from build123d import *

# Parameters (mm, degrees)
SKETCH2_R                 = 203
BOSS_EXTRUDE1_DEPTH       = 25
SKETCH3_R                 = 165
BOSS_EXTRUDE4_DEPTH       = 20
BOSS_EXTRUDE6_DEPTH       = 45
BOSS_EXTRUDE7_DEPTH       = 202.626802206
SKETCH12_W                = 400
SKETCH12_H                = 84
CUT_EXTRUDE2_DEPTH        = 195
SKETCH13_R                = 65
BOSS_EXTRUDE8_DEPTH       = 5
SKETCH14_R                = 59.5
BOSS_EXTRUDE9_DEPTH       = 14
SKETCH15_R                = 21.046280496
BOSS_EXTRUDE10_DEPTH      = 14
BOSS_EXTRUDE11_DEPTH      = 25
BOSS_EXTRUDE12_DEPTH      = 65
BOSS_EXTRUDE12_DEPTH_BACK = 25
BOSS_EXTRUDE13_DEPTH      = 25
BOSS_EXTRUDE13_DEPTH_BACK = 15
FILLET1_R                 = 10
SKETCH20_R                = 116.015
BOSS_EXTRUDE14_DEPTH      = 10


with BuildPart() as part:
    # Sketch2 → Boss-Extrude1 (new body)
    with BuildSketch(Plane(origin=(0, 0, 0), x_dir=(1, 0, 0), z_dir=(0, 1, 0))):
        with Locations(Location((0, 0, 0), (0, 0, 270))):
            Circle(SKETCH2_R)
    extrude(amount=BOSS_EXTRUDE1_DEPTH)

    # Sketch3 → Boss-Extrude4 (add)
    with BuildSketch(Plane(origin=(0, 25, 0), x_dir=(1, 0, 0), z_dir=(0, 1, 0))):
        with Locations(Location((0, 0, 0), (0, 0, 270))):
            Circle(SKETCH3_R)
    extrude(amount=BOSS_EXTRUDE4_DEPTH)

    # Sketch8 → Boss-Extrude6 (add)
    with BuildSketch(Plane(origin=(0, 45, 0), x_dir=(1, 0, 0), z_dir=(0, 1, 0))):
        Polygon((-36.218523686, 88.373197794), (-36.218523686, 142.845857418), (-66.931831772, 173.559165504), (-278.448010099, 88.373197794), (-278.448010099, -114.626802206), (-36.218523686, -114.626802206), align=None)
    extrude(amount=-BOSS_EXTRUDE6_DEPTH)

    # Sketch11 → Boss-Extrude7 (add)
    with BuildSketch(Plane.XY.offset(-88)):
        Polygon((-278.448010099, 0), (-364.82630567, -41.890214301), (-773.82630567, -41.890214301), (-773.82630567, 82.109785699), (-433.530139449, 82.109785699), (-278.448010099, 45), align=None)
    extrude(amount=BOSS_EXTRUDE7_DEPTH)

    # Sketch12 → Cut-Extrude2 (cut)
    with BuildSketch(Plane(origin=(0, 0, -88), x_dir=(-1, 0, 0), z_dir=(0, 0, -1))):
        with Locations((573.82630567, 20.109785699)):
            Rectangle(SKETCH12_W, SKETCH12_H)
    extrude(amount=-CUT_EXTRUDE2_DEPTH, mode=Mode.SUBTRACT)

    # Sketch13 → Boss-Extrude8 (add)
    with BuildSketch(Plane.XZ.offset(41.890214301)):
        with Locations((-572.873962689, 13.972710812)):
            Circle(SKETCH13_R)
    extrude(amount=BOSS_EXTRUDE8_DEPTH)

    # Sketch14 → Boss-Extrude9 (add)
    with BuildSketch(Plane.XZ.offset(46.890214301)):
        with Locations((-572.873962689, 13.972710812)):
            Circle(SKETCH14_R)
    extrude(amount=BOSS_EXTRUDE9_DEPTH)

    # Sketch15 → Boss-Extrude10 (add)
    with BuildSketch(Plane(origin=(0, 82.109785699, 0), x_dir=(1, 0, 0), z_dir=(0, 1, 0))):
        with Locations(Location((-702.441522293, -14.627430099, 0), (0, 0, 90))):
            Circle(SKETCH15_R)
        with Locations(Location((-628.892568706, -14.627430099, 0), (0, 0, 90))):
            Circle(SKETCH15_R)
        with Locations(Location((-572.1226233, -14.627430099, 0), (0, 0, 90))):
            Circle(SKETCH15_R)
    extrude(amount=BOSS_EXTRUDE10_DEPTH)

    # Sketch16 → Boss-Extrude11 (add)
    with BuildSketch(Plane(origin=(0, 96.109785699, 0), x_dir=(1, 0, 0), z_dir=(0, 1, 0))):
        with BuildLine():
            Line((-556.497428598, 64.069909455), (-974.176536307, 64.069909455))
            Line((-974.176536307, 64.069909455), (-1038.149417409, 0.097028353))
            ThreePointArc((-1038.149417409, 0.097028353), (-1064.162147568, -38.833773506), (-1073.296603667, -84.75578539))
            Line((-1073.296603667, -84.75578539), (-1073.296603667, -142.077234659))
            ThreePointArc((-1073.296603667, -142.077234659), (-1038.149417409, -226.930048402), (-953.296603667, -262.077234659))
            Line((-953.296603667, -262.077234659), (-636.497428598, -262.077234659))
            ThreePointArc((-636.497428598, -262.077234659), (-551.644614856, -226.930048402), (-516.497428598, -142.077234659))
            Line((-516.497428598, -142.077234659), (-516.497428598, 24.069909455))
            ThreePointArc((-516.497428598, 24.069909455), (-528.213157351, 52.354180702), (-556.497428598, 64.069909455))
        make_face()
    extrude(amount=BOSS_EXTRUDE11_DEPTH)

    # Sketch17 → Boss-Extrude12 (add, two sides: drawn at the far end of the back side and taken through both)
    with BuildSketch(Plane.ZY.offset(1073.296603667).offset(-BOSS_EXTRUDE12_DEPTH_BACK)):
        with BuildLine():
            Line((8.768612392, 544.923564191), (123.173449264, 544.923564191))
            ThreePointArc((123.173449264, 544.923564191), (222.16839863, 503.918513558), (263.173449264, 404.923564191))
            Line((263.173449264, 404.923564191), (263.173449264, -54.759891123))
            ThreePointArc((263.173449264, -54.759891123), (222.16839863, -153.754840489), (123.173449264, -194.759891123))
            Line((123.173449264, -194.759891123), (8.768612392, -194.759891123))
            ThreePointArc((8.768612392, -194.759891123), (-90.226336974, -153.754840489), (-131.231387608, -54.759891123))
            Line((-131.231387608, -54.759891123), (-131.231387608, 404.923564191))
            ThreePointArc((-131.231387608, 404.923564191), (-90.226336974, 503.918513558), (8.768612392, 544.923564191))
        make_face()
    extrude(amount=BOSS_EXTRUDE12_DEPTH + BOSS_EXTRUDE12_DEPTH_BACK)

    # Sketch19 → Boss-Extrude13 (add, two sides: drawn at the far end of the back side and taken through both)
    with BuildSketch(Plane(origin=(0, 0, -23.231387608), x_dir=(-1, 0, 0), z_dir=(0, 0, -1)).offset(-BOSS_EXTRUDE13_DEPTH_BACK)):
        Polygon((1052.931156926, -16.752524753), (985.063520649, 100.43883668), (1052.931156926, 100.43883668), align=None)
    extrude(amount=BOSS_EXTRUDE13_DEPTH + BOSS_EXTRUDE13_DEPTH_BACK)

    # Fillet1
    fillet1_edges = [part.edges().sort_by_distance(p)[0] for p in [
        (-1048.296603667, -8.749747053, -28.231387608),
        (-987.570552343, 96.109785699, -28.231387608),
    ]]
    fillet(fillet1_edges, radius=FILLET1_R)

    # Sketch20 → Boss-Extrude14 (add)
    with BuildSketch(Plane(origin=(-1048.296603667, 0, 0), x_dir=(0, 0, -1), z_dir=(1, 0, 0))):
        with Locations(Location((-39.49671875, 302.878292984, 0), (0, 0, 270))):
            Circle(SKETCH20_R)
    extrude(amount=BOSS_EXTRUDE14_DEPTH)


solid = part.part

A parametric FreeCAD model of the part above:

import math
import FreeCAD as App
import Part
import Sketcher
from FreeCAD import Vector
Q = App.Units.Quantity


def edges_at(feature, points):
    """Names of the edges that pass closest to the given points."""
    edges = feature.Shape.Edges
    near = lambda p: min(range(len(edges)), key=lambda i: edges[i].distToShape(Part.Vertex(*p))[0])
    return sorted({f"Edge{near(p) + 1}" for p in points})

doc = App.newDocument("Part")
body = doc.addObject("PartDesign::Body", "Body")

# Sketch on XZ plane
sketch1 = body.newObject("Sketcher::SketchObject", "Sketch")
sketch1.AttachmentSupport = (doc.getObject("XZ_Plane"), [""])
sketch1.MapMode = "FlatFace"
sketch1.addGeometry(Part.Circle(Vector(0, 0, 0), Vector(0, 0, 1), 203), False)
sketch1.addConstraint(Sketcher.Constraint("Coincident", 0, 3, -1, 1))
sketch1.addConstraint(Sketcher.Constraint("Diameter", 0, 406.0))
pad1 = body.newObject("PartDesign::Pad", "Pad")
pad1.Profile = sketch1
pad1.Length = 25
pad1.Reversed = True

# Sketch on XZ plane
sketch2 = body.newObject("Sketcher::SketchObject", "Sketch001")
sketch2.AttachmentSupport = (doc.getObject("XZ_Plane"), [""])
sketch2.MapMode = "FlatFace"
sketch2.AttachmentOffset = App.Placement(Vector(0, 0, -25), App.Rotation())
sketch2.addGeometry(Part.Circle(Vector(0, 0, 0), Vector(0, 0, 1), 165), False)
sketch2.addConstraint(Sketcher.Constraint("Coincident", 0, 3, -1, 1))
sketch2.addConstraint(Sketcher.Constraint("Diameter", 0, 330.0))
pad2 = body.newObject("PartDesign::Pad", "Pad001")
pad2.Profile = sketch2
pad2.Length = 20
pad2.Reversed = True

# Sketch on XZ plane
sketch3 = body.newObject("Sketcher::SketchObject", "Sketch002")
sketch3.AttachmentSupport = (doc.getObject("XZ_Plane"), [""])
sketch3.MapMode = "FlatFace"
sketch3.AttachmentOffset = App.Placement(Vector(0, 0, -45), App.Rotation())
sketch3.addGeometry(Part.LineSegment(Vector(-36, -143, 0), Vector(-67, -174, 0)), False)
sketch3.addGeometry(Part.LineSegment(Vector(-67, -174, 0), Vector(-278, -88, 0)), False)
sketch3.addGeometry(Part.LineSegment(Vector(-278, -88, 0), Vector(-278, 115, 0)), False)
sketch3.addGeometry(Part.LineSegment(Vector(-278, 115, 0), Vector(-36, 115, 0)), False)
sketch3.addGeometry(Part.LineSegment(Vector(-36, 115, 0), Vector(-36, -143, 0)), False)
sketch3.addConstraint(Sketcher.Constraint("Coincident", 0, 2, 1, 1))
sketch3.addConstraint(Sketcher.Constraint("Coincident", 1, 2, 2, 1))
sketch3.addConstraint(Sketcher.Constraint("Coincident", 2, 2, 3, 1))
sketch3.addConstraint(Sketcher.Constraint("Coincident", 3, 2, 4, 1))
sketch3.addConstraint(Sketcher.Constraint("Coincident", 4, 2, 0, 1))
sketch3.addConstraint(Sketcher.Constraint("Vertical", 2))
sketch3.addConstraint(Sketcher.Constraint("Horizontal", 3))
sketch3.addConstraint(Sketcher.Constraint("Vertical", 4))
sketch3.addConstraint(Sketcher.Constraint("DistanceY", 2, 1, 2, 2, 203.0))
sketch3.addConstraint(Sketcher.Constraint("Angle", 0, Q("-135 deg")))
sketch3.addConstraint(Sketcher.Constraint("DistanceY", 4, 2, 4, 1, 257.47266))
sketch3.addConstraint(Sketcher.Constraint("Distance", 1, 228.02575))
sketch3.addConstraint(Sketcher.Constraint("DistanceX", 3, 1, 3, 2, 242.229486))
sketch3.addConstraint(Sketcher.Constraint("DistanceX", 0, 2, -1, 1, 66.931832))
sketch3.addConstraint(Sketcher.Constraint("DistanceY", 0, 2, -1, 1, 173.559166))
pad3 = body.newObject("PartDesign::Pad", "Pad002")
pad3.Profile = sketch3
pad3.Length = 45

# Sketch on XY plane
sketch4 = body.newObject("Sketcher::SketchObject", "Sketch003")
sketch4.AttachmentSupport = (doc.getObject("XY_Plane"), [""])
sketch4.MapMode = "FlatFace"
sketch4.AttachmentOffset = App.Placement(Vector(0, 0, -88), App.Rotation())
sketch4.addGeometry(Part.LineSegment(Vector(-365, -42, 0), Vector(-278, 0, 0)), False)
sketch4.addGeometry(Part.LineSegment(Vector(-278, 0, 0), Vector(-278, 45, 0)), False)
sketch4.addGeometry(Part.LineSegment(Vector(-278, 45, 0), Vector(-434, 82, 0)), False)
sketch4.addGeometry(Part.LineSegment(Vector(-434, 82, 0), Vector(-774, 82, 0)), False)
sketch4.addGeometry(Part.LineSegment(Vector(-774, 82, 0), Vector(-774, -42, 0)), False)
sketch4.addGeometry(Part.LineSegment(Vector(-774, -42, 0), Vector(-365, -42, 0)), False)
sketch4.addConstraint(Sketcher.Constraint("Coincident", 0, 2, 1, 1))
sketch4.addConstraint(Sketcher.Constraint("Coincident", 1, 2, 2, 1))
sketch4.addConstraint(Sketcher.Constraint("Coincident", 2, 2, 3, 1))
sketch4.addConstraint(Sketcher.Constraint("Coincident", 3, 2, 4, 1))
sketch4.addConstraint(Sketcher.Constraint("Coincident", 4, 2, 5, 1))
sketch4.addConstraint(Sketcher.Constraint("Coincident", 5, 2, 0, 1))
sketch4.addConstraint(Sketcher.Constraint("Vertical", 1))
sketch4.addConstraint(Sketcher.Constraint("Horizontal", 3))
sketch4.addConstraint(Sketcher.Constraint("Vertical", 4))
sketch4.addConstraint(Sketcher.Constraint("Horizontal", 5))
sketch4.addConstraint(Sketcher.Constraint("PointOnObject", 0, 2, -1))
sketch4.addConstraint(Sketcher.Constraint("DistanceX", 5, 1, 5, 2, 409.0))
sketch4.addConstraint(Sketcher.Constraint("DistanceY", 1, 1, 1, 2, 45.0))
sketch4.addConstraint(Sketcher.Constraint("DistanceY", 4, 2, 4, 1, 124.0))
sketch4.addConstraint(Sketcher.Constraint("Distance", 0, 96.0))
sketch4.addConstraint(Sketcher.Constraint("Distance", 2, 159.460349))
sketch4.addConstraint(Sketcher.Constraint("DistanceX", 3, 2, 3, 1, 340.296166))
sketch4.addConstraint(Sketcher.Constraint("DistanceX", 0, 2, -1, 1, 278.44801))
pad4 = body.newObject("PartDesign::Pad", "Pad003")
pad4.Profile = sketch4
pad4.Length = 202.626802

# Sketch on XY plane
sketch5 = body.newObject("Sketcher::SketchObject", "Sketch004")
sketch5.AttachmentSupport = (doc.getObject("XY_Plane"), [""])
sketch5.MapMode = "FlatFace"
sketch5.AttachmentOffset = App.Placement(Vector(0, 0, -88), App.Rotation())
sketch5.addGeometry(Part.LineSegment(Vector(-374, 62, 0), Vector(-374, -22, 0)), False)
sketch5.addGeometry(Part.LineSegment(Vector(-374, -22, 0), Vector(-774, -22, 0)), False)
sketch5.addGeometry(Part.LineSegment(Vector(-774, -22, 0), Vector(-774, 62, 0)), False)
sketch5.addGeometry(Part.LineSegment(Vector(-774, 62, 0), Vector(-374, 62, 0)), False)
sketch5.addConstraint(Sketcher.Constraint("Coincident", 0, 2, 1, 1))
sketch5.addConstraint(Sketcher.Constraint("Coincident", 1, 2, 2, 1))
sketch5.addConstraint(Sketcher.Constraint("Coincident", 2, 2, 3, 1))
sketch5.addConstraint(Sketcher.Constraint("Coincident", 3, 2, 0, 1))
sketch5.addConstraint(Sketcher.Constraint("Vertical", 0))
sketch5.addConstraint(Sketcher.Constraint("Horizontal", 1))
sketch5.addConstraint(Sketcher.Constraint("Vertical", 2))
sketch5.addConstraint(Sketcher.Constraint("Horizontal", 3))
sketch5.addConstraint(Sketcher.Constraint("DistanceX", 1, 2, 1, 1, 400.0))
sketch5.addConstraint(Sketcher.Constraint("DistanceY", 0, 2, 0, 1, 84.0))
sketch5.addConstraint(Sketcher.Constraint("DistanceX", 0, 2, -1, 1, 373.826306))
sketch5.addConstraint(Sketcher.Constraint("DistanceY", 0, 2, -1, 1, 21.890214))
pocket1 = body.newObject("PartDesign::Pocket", "Pocket")
pocket1.Profile = sketch5
pocket1.Length = 195
pocket1.Reversed = True

# Sketch on XZ plane
sketch6 = body.newObject("Sketcher::SketchObject", "Sketch005")
sketch6.AttachmentSupport = (doc.getObject("XZ_Plane"), [""])
sketch6.MapMode = "FlatFace"
sketch6.AttachmentOffset = App.Placement(Vector(0, 0, 41.890214), App.Rotation())
sketch6.addGeometry(Part.Circle(Vector(-573, 14, 0), Vector(0, 0, 1), 65), False)
sketch6.addConstraint(Sketcher.Constraint("Diameter", 0, 130.0))
sketch6.addConstraint(Sketcher.Constraint("DistanceY", -1, 1, 0, 3, 13.972711))
sketch6.addConstraint(Sketcher.Constraint("DistanceX", 0, 3, -1, 1, 572.873963))
pad5 = body.newObject("PartDesign::Pad", "Pad004")
pad5.Profile = sketch6
pad5.Length = 5

# Sketch on XZ plane
sketch7 = body.newObject("Sketcher::SketchObject", "Sketch006")
sketch7.AttachmentSupport = (doc.getObject("XZ_Plane"), [""])
sketch7.MapMode = "FlatFace"
sketch7.AttachmentOffset = App.Placement(Vector(0, 0, 46.890214), App.Rotation())
sketch7.addGeometry(Part.Circle(Vector(-573, 14, 0), Vector(0, 0, 1), 60), False)
sketch7.addConstraint(Sketcher.Constraint("Diameter", 0, 119.0))
sketch7.addConstraint(Sketcher.Constraint("DistanceY", -1, 1, 0, 3, 13.972711))
sketch7.addConstraint(Sketcher.Constraint("DistanceX", 0, 3, -1, 1, 572.873963))
pad6 = body.newObject("PartDesign::Pad", "Pad005")
pad6.Profile = sketch7
pad6.Length = 14

# Sketch on XZ plane
sketch8 = body.newObject("Sketcher::SketchObject", "Sketch007")
sketch8.AttachmentSupport = (doc.getObject("XZ_Plane"), [""])
sketch8.MapMode = "FlatFace"
sketch8.AttachmentOffset = App.Placement(Vector(0, 0, -82.109786), App.Rotation())
sketch8.addGeometry(Part.Circle(Vector(-702, 15, 0), Vector(0, 0, 1), 21), False)
sketch8.addGeometry(Part.Circle(Vector(-629, 15, 0), Vector(0, 0, 1), 21), False)
sketch8.addGeometry(Part.Circle(Vector(-572, 15, 0), Vector(0, 0, 1), 21), False)
sketch8.addConstraint(Sketcher.Constraint("Equal", 0, 1))
sketch8.addConstraint(Sketcher.Constraint("Equal", 1, 2))
sketch8.addConstraint(Sketcher.Constraint("Horizontal", 0, 3, 1, 3))
sketch8.addConstraint(Sketcher.Constraint("Horizontal", 1, 3, 2, 3))
sketch8.addConstraint(Sketcher.Constraint("Diameter", 0, 42.092561))
sketch8.addConstraint(Sketcher.Constraint("DistanceX", 0, 3, 2, 3, 130.318899))
sketch8.addConstraint(Sketcher.Constraint("DistanceY", -1, 1, 0, 3, 14.62743))
sketch8.addConstraint(Sketcher.Constraint("DistanceX", 1, 3, -1, 1, 628.892569))
sketch8.addConstraint(Sketcher.Constraint("DistanceX", 0, 3, -1, 1, 702.441522))
pad7 = body.newObject("PartDesign::Pad", "Pad006")
pad7.Profile = sketch8
pad7.Length = 14
pad7.Reversed = True

# Sketch on XZ plane
sketch9 = body.newObject("Sketcher::SketchObject", "Sketch008")
sketch9.AttachmentSupport = (doc.getObject("XZ_Plane"), [""])
sketch9.MapMode = "FlatFace"
sketch9.AttachmentOffset = App.Placement(Vector(0, 0, -96.109786), App.Rotation())
sketch9.addGeometry(Part.LineSegment(Vector(-556, -64, 0), Vector(-974, -64, 0)), False)
sketch9.addGeometry(Part.LineSegment(Vector(-974, -64, 0), Vector(-1038, 0, 0)), False)
sketch9.addGeometry(Part.ArcOfCircle(Part.Circle(Vector(-953, 85, 0), Vector(0, 0, 1), 120), math.radians(-180), math.radians(-135)), False)
sketch9.addGeometry(Part.LineSegment(Vector(-1073, 85, 0), Vector(-1073, 142, 0)), False)
sketch9.addGeometry(Part.ArcOfCircle(Part.Circle(Vector(-953, 142, 0), Vector(0, 0, 1), 120), math.radians(90), math.radians(180)), False)
sketch9.addGeometry(Part.LineSegment(Vector(-953, 262, 0), Vector(-636, 262, 0)), False)
sketch9.addGeometry(Part.ArcOfCircle(Part.Circle(Vector(-636, 142, 0), Vector(0, 0, 1), 120), math.radians(0), math.radians(90)), False)
sketch9.addGeometry(Part.LineSegment(Vector(-516, 142, 0), Vector(-516, -24, 0)), False)
sketch9.addGeometry(Part.ArcOfCircle(Part.Circle(Vector(-556, -24, 0), Vector(0, 0, 1), 40), math.radians(-90), math.radians(0)), False)
sketch9.addConstraint(Sketcher.Constraint("Coincident", 0, 2, 1, 1))
sketch9.addConstraint(Sketcher.Constraint("Tangent", 1, 2, 2, 2))
sketch9.addConstraint(Sketcher.Constraint("Tangent", 2, 1, 3, 1))
sketch9.addConstraint(Sketcher.Constraint("Tangent", 3, 2, 4, 2))
sketch9.addConstraint(Sketcher.Constraint("Tangent", 4, 1, 5, 1))
sketch9.addConstraint(Sketcher.Constraint("Tangent", 5, 2, 6, 2))
sketch9.addConstraint(Sketcher.Constraint("Tangent", 6, 1, 7, 1))
sketch9.addConstraint(Sketcher.Constraint("Tangent", 7, 2, 8, 2))
sketch9.addConstraint(Sketcher.Constraint("Tangent", 8, 1, 0, 1))
sketch9.addConstraint(Sketcher.Constraint("Horizontal", 0))
sketch9.addConstraint(Sketcher.Constraint("Vertical", 3))
sketch9.addConstraint(Sketcher.Constraint("Horizontal", 5))
sketch9.addConstraint(Sketcher.Constraint("Vertical", 7))
sketch9.addConstraint(Sketcher.Constraint("Equal", 2, 4))
sketch9.addConstraint(Sketcher.Constraint("Equal", 4, 6))
sketch9.addConstraint(Sketcher.Constraint("Radius", 2, 120.0))
sketch9.addConstraint(Sketcher.Constraint("Radius", 8, 40.0))
sketch9.addConstraint(Sketcher.Constraint("Angle", 1, Q("135 deg")))
sketch9.addConstraint(Sketcher.Constraint("DistanceY", 3, 1, 3, 2, 57.321449))
sketch9.addConstraint(Sketcher.Constraint("DistanceX", 0, 2, 0, 1, 417.679108))
sketch9.addConstraint(Sketcher.Constraint("DistanceX", 5, 1, 5, 2, 316.799175))
sketch9.addConstraint(Sketcher.Constraint("DistanceX", 6, 3, -1, 1, 636.497429))
sketch9.addConstraint(Sketcher.Constraint("DistanceY", 8, 3, -1, 1, 24.069909))
pad8 = body.newObject("PartDesign::Pad", "Pad007")
pad8.Profile = sketch9
pad8.Length = 25
pad8.Reversed = True

# Sketch on YZ plane
sketch10 = body.newObject("Sketcher::SketchObject", "Sketch009")
sketch10.AttachmentSupport = (doc.getObject("YZ_Plane"), [""])
sketch10.MapMode = "FlatFace"
sketch10.AttachmentOffset = App.Placement(Vector(0, 0, -1073.296604), App.Rotation())
sketch10.addGeometry(Part.LineSegment(Vector(545, 123, 0), Vector(545, 9, 0)), False)
sketch10.addGeometry(Part.ArcOfCircle(Part.Circle(Vector(405, 9, 0), Vector(0, 0, 1), 140), math.radians(-90), math.radians(0)), False)
sketch10.addGeometry(Part.LineSegment(Vector(405, -131, 0), Vector(-55, -131, 0)), False)
sketch10.addGeometry(Part.ArcOfCircle(Part.Circle(Vector(-55, 9, 0), Vector(0, 0, 1), 140), math.radians(180), math.radians(270)), False)
sketch10.addGeometry(Part.LineSegment(Vector(-195, 9, 0), Vector(-195, 123, 0)), False)
sketch10.addGeometry(Part.ArcOfCircle(Part.Circle(Vector(-55, 123, 0), Vector(0, 0, 1), 140), math.radians(90), math.radians(180)), False)
sketch10.addGeometry(Part.LineSegment(Vector(-55, 263, 0), Vector(405, 263, 0)), False)
sketch10.addGeometry(Part.ArcOfCircle(Part.Circle(Vector(405, 123, 0), Vector(0, 0, 1), 140), math.radians(0), math.radians(90)), False)
sketch10.addConstraint(Sketcher.Constraint("Tangent", 0, 2, 1, 2))
sketch10.addConstraint(Sketcher.Constraint("Tangent", 1, 1, 2, 1))
sketch10.addConstraint(Sketcher.Constraint("Tangent", 2, 2, 3, 2))
sketch10.addConstraint(Sketcher.Constraint("Tangent", 3, 1, 4, 1))
sketch10.addConstraint(Sketcher.Constraint("Tangent", 4, 2, 5, 2))
sketch10.addConstraint(Sketcher.Constraint("Tangent", 5, 1, 6, 1))
sketch10.addConstraint(Sketcher.Constraint("Tangent", 6, 2, 7, 2))
sketch10.addConstraint(Sketcher.Constraint("Tangent", 7, 1, 0, 1))
sketch10.addConstraint(Sketcher.Constraint("Vertical", 0))
sketch10.addConstraint(Sketcher.Constraint("Horizontal", 2))
sketch10.addConstraint(Sketcher.Constraint("Vertical", 4))
sketch10.addConstraint(Sketcher.Constraint("Horizontal", 6))
sketch10.addConstraint(Sketcher.Constraint("Equal", 1, 3))
sketch10.addConstraint(Sketcher.Constraint("Equal", 3, 5))
sketch10.addConstraint(Sketcher.Constraint("Equal", 5, 7))
sketch10.addConstraint(Sketcher.Constraint("Radius", 1, 140.0))
sketch10.addConstraint(Sketcher.Constraint("DistanceX", 2, 2, 2, 1, 459.683455))
sketch10.addConstraint(Sketcher.Constraint("DistanceY", 0, 2, 0, 1, 114.404837))
sketch10.addConstraint(Sketcher.Constraint("DistanceX", 3, 3, -1, 1, 54.759891))
sketch10.addConstraint(Sketcher.Constraint("DistanceY", -1, 1, 5, 3, 123.173449))
pad9 = body.newObject("PartDesign::Pad", "Pad008")
pad9.Profile = sketch10
pad9.Type = "TwoLengths"
pad9.Length = 65
pad9.Length2 = 25
pad9.Reversed = True

# Sketch on XY plane
sketch11 = body.newObject("Sketcher::SketchObject", "Sketch010")
sketch11.AttachmentSupport = (doc.getObject("XY_Plane"), [""])
sketch11.MapMode = "FlatFace"
sketch11.AttachmentOffset = App.Placement(Vector(0, 0, -23.231388), App.Rotation())
sketch11.addGeometry(Part.LineSegment(Vector(-985, 100, 0), Vector(-1053, -17, 0)), False)
sketch11.addGeometry(Part.LineSegment(Vector(-1053, -17, 0), Vector(-1053, 100, 0)), False)
sketch11.addGeometry(Part.LineSegment(Vector(-1053, 100, 0), Vector(-985, 100, 0)), False)
sketch11.addConstraint(Sketcher.Constraint("Coincident", 0, 2, 1, 1))
sketch11.addConstraint(Sketcher.Constraint("Coincident", 1, 2, 2, 1))
sketch11.addConstraint(Sketcher.Constraint("Coincident", 2, 2, 0, 1))
sketch11.addConstraint(Sketcher.Constraint("Vertical", 1))
sketch11.addConstraint(Sketcher.Constraint("Horizontal", 2))
sketch11.addConstraint(Sketcher.Constraint("DistanceY", 1, 1, 1, 2, 117.191361))
sketch11.addConstraint(Sketcher.Constraint("DistanceX", 2, 1, 2, 2, 67.867636))
sketch11.addConstraint(Sketcher.Constraint("DistanceX", 2, 2, -1, 1, 985.063521))
sketch11.addConstraint(Sketcher.Constraint("DistanceY", 0, 2, -1, 1, 16.752525))
pad10 = body.newObject("PartDesign::Pad", "Pad009")
pad10.Profile = sketch11
pad10.Type = "TwoLengths"
pad10.Length = 25
pad10.Length2 = 15
pad10.Reversed = True
doc.recompute()

fillet = body.newObject("PartDesign::Fillet", "Fillet")
fillet.Base = (pad10, edges_at(pad10, [(-1048.297, -8.75, -28.231), (-987.571, 96.11, -28.231)]))
fillet.Radius = 10

# Sketch on YZ plane
sketch12 = body.newObject("Sketcher::SketchObject", "Sketch011")
sketch12.AttachmentSupport = (doc.getObject("YZ_Plane"), [""])
sketch12.MapMode = "FlatFace"
sketch12.AttachmentOffset = App.Placement(Vector(0, 0, -1048.296604), App.Rotation())
sketch12.addGeometry(Part.Circle(Vector(303, 39, 0), Vector(0, 0, 1), 116), False)
sketch12.addConstraint(Sketcher.Constraint("Diameter", 0, 232.03))
sketch12.addConstraint(Sketcher.Constraint("DistanceY", -1, 1, 0, 3, 39.496719))
sketch12.addConstraint(Sketcher.Constraint("DistanceX", -1, 1, 0, 3, 302.878293))
pad11 = body.newObject("PartDesign::Pad", "Pad010")
pad11.Profile = sketch12
pad11.Length = 10

doc.recompute()
